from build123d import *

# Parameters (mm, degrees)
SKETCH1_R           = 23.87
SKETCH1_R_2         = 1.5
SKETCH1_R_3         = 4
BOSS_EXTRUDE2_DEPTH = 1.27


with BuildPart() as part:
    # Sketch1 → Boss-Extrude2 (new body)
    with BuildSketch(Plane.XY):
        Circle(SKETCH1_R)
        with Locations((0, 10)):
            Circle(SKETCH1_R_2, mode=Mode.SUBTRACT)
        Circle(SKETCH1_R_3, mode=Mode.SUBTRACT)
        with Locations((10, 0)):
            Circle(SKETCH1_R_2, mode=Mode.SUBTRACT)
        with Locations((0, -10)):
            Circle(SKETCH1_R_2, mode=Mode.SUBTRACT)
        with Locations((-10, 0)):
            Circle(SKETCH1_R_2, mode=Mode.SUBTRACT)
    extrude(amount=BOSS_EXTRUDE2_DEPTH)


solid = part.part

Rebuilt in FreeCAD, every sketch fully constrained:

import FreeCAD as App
import Part
import Sketcher
Q = App.Units.Quantity

doc = App.newDocument("Part")
body = doc.addObject("PartDesign::Body", "Body")

# Sketch on XY plane
sketch1 = body.newObject("Sketcher::SketchObject", "Sketch")
sketch1.AttachmentSupport = (doc.getObject("XY_Plane"), [""])
sketch1.MapMode = "FlatFace"
sketch1.addGeometry([
    Part.Circle(App.Vector(0, 0, 0), App.Vector(0, 0, 1), 23.9),  # 0
    Part.Circle(App.Vector(0, -10, 0), App.Vector(0, 0, 1), 1.5),  # 1
    Part.Circle(App.Vector(-10, 0, 0), App.Vector(0, 0, 1), 1.5),  # 2
    Part.Circle(App.Vector(0, 0, 0), App.Vector(0, 0, 1), 4),  # 3
    Part.Circle(App.Vector(10, 0, 0), App.Vector(0, 0, 1), 1.5),  # 4
    Part.Circle(App.Vector(0, 10, 0), App.Vector(0, 0, 1), 1.5),  # 5
], False)
sketch1.addConstraint([
    Sketcher.Constraint("Coincident", 0, 3, -1, 1),
    Sketcher.Constraint("Coincident", 3, 3, -1, 1),
    Sketcher.Constraint("Equal", 1, 2),
    Sketcher.Constraint("Equal", 2, 4),
    Sketcher.Constraint("Equal", 4, 5),
    Sketcher.Constraint("Symmetric", 2, 3, 4, 3, -1, 1),
    Sketcher.Constraint("Symmetric", 1, 3, 5, 3, -1, 1),
    Sketcher.Constraint("PointOnObject", 1, 3, -2),
    Sketcher.Constraint("PointOnObject", 2, 3, -1),
    Sketcher.Constraint("Diameter", 1, Q("3 mm")),
    Sketcher.Constraint("Diameter", 3, Q("8 mm")),
    Sketcher.Constraint("Diameter", 0, Q("47.74 mm")),
    Sketcher.Constraint("DistanceY", 1, 3, -1, 1, Q("10 mm")),
    Sketcher.Constraint("DistanceX", 2, 3, -1, 1, Q("10 mm")),
])
pad1 = body.newObject("PartDesign::Pad", "Pad")
pad1.Profile = sketch1
pad1.Length = 1.27

doc.recompute()
